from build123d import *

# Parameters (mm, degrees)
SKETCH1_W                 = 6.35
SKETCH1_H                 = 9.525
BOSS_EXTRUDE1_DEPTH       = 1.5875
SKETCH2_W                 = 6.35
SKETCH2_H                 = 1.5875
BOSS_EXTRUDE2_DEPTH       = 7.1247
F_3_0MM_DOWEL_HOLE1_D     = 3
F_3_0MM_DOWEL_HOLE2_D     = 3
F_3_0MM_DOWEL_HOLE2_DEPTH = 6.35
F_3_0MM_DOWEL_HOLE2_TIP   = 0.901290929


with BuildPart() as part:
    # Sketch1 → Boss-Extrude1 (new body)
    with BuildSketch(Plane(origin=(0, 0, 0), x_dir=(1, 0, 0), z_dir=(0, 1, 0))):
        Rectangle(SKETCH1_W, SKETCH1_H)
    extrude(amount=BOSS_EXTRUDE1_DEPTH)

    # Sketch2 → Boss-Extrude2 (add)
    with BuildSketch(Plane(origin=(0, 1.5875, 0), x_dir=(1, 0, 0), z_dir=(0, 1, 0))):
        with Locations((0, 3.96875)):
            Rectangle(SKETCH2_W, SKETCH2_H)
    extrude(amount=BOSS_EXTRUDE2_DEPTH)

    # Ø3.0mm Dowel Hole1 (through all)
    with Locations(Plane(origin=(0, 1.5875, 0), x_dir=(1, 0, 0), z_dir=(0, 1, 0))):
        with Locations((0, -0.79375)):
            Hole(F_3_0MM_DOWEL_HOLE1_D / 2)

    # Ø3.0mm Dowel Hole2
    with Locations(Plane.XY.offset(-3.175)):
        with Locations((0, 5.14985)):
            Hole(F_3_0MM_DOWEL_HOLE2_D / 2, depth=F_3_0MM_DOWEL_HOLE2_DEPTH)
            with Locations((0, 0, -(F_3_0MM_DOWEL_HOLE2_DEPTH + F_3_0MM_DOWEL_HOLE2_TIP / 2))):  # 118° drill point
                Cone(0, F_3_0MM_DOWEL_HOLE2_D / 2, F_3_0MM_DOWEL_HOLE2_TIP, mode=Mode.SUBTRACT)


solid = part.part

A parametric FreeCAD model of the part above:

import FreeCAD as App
import Part
import Sketcher

V = App.Vector
Q = App.Units.Quantity

doc = App.newDocument("Part")
body = doc.addObject("PartDesign::Body", "Body")

sketch1 = body.newObject("Sketcher::SketchObject", "Sketch")
sketch1.AttachmentSupport = (doc.getObject("XZ_Plane"), [""])
sketch1.MapMode = "FlatFace"
sketch1.addGeometry(Part.LineSegment(V(-3, -5, 0), V(-3, 5, 0)), False)
sketch1.addGeometry(Part.LineSegment(V(-3, 5, 0), V(3, 5, 0)), False)
sketch1.addGeometry(Part.LineSegment(V(3, 5, 0), V(3, -5, 0)), False)
sketch1.addGeometry(Part.LineSegment(V(3, -5, 0), V(-3, -5, 0)), False)
sketch1.addConstraint(Sketcher.Constraint("Coincident", 0, 2, 1, 1))
sketch1.addConstraint(Sketcher.Constraint("Coincident", 1, 2, 2, 1))
sketch1.addConstraint(Sketcher.Constraint("Coincident", 2, 2, 3, 1))
sketch1.addConstraint(Sketcher.Constraint("Coincident", 3, 2, 0, 1))
sketch1.addConstraint(Sketcher.Constraint("Vertical", 0))
sketch1.addConstraint(Sketcher.Constraint("Horizontal", 1))
sketch1.addConstraint(Sketcher.Constraint("Vertical", 2))
sketch1.addConstraint(Sketcher.Constraint("Horizontal", 3))
sketch1.addConstraint(Sketcher.Constraint("Symmetric", 0, 2, 2, 2, -1, 1))
sketch1.addConstraint(Sketcher.Constraint("DistanceX", 1, 1, 1, 2, Q("0.25 in")))
sketch1.addConstraint(Sketcher.Constraint("DistanceY", 0, 1, 0, 2, Q("0.375 in")))
pad1 = body.newObject("PartDesign::Pad", "Pad")
pad1.Profile = sketch1
pad1.Length = Q("0.0625 in")
pad1.Reversed = True

sketch2 = body.newObject("Sketcher::SketchObject", "Sketch001")
sketch2.AttachmentSupport = (doc.getObject("XZ_Plane"), [""])
sketch2.MapMode = "FlatFace"
sketch2.AttachmentOffset = App.Placement(V(0, 0, -0.0625 * 25.4), App.Rotation())
sketch2.addGeometry(Part.LineSegment(V(-3.2, -4.8, 0), V(-3.2, -3.2, 0)), False)
sketch2.addGeometry(Part.LineSegment(V(-3.2, -3.2, 0), V(3.2, -3.2, 0)), False)
sketch2.addGeometry(Part.LineSegment(V(3.2, -3.2, 0), V(3.2, -4.8, 0)), False)
sketch2.addGeometry(Part.LineSegment(V(3.2, -4.8, 0), V(-3.2, -4.8, 0)), False)
sketch2.addConstraint(Sketcher.Constraint("Coincident", 0, 2, 1, 1))
sketch2.addConstraint(Sketcher.Constraint("Coincident", 1, 2, 2, 1))
sketch2.addConstraint(Sketcher.Constraint("Coincident", 2, 2, 3, 1))
sketch2.addConstraint(Sketcher.Constraint("Coincident", 3, 2, 0, 1))
sketch2.addConstraint(Sketcher.Constraint("Vertical", 0))
sketch2.addConstraint(Sketcher.Constraint("Horizontal", 1))
sketch2.addConstraint(Sketcher.Constraint("Vertical", 2))
sketch2.addConstraint(Sketcher.Constraint("Horizontal", 3))
sketch2.addConstraint(Sketcher.Constraint("DistanceX", 1, 1, 1, 2, Q("0.25 in")))
sketch2.addConstraint(Sketcher.Constraint("DistanceY", 0, 1, 0, 2, Q("0.0625 in")))
sketch2.addConstraint(Sketcher.Constraint("DistanceX", 0, 2, -1, 1, Q("0.125 in")))
sketch2.addConstraint(Sketcher.Constraint("DistanceY", 0, 2, -1, 1, Q("0.125 in")))
pad2 = body.newObject("PartDesign::Pad", "Pad001")
pad2.Profile = sketch2
pad2.Length = Q("0.2805 in")
pad2.Reversed = True

sketch3 = body.newObject("Sketcher::SketchObject", "Sketch002")
sketch3.AttachmentSupport = (doc.getObject("XZ_Plane"), [""])
sketch3.MapMode = "FlatFace"
sketch3.AttachmentOffset = App.Placement(V(0, 0, -0.0625 * 25.4), App.Rotation())
sketch3.addGeometry(Part.Circle(V(0, 0.8, 0), V(0, 0, 1), 1.5), False)
sketch3.addConstraint(Sketcher.Constraint("PointOnObject", 0, 3, -2))
sketch3.addConstraint(Sketcher.Constraint("Diameter", 0, 3.0))
sketch3.addConstraint(Sketcher.Constraint("DistanceY", -1, 1, 0, 3, Q("0.03125 in")))
doc.recompute()
hole = body.newObject("PartDesign::Hole", "Hole")
hole.Profile = sketch3
hole.ThreadType = "None"
hole.Diameter = 3
hole.DepthType = "ThroughAll"
hole.Reversed = True

sketch4 = body.newObject("Sketcher::SketchObject", "Sketch003")
sketch4.AttachmentSupport = (doc.getObject("XY_Plane"), [""])
sketch4.MapMode = "FlatFace"
sketch4.AttachmentOffset = App.Placement(V(0, 0, -0.125 * 25.4), App.Rotation())
sketch4.addGeometry(Part.Circle(V(0, 5.1, 0), V(0, 0, 1), 1.5), False)
sketch4.addConstraint(Sketcher.Constraint("PointOnObject", 0, 3, -2))
sketch4.addConstraint(Sketcher.Constraint("Diameter", 0, 3.0))
sketch4.addConstraint(Sketcher.Constraint("DistanceY", -1, 1, 0, 3, 5.14985))
doc.recompute()
hole2 = body.newObject("PartDesign::Hole", "Hole001")
hole2.Profile = sketch4
hole2.ThreadType = "None"
hole2.Diameter = 3
hole2.DepthType = "Dimension"
hole2.Depth = Q("0.25 in")
hole2.DrillPoint = "Angled"
hole2.DrillPointAngle = 118

doc.recompute()
